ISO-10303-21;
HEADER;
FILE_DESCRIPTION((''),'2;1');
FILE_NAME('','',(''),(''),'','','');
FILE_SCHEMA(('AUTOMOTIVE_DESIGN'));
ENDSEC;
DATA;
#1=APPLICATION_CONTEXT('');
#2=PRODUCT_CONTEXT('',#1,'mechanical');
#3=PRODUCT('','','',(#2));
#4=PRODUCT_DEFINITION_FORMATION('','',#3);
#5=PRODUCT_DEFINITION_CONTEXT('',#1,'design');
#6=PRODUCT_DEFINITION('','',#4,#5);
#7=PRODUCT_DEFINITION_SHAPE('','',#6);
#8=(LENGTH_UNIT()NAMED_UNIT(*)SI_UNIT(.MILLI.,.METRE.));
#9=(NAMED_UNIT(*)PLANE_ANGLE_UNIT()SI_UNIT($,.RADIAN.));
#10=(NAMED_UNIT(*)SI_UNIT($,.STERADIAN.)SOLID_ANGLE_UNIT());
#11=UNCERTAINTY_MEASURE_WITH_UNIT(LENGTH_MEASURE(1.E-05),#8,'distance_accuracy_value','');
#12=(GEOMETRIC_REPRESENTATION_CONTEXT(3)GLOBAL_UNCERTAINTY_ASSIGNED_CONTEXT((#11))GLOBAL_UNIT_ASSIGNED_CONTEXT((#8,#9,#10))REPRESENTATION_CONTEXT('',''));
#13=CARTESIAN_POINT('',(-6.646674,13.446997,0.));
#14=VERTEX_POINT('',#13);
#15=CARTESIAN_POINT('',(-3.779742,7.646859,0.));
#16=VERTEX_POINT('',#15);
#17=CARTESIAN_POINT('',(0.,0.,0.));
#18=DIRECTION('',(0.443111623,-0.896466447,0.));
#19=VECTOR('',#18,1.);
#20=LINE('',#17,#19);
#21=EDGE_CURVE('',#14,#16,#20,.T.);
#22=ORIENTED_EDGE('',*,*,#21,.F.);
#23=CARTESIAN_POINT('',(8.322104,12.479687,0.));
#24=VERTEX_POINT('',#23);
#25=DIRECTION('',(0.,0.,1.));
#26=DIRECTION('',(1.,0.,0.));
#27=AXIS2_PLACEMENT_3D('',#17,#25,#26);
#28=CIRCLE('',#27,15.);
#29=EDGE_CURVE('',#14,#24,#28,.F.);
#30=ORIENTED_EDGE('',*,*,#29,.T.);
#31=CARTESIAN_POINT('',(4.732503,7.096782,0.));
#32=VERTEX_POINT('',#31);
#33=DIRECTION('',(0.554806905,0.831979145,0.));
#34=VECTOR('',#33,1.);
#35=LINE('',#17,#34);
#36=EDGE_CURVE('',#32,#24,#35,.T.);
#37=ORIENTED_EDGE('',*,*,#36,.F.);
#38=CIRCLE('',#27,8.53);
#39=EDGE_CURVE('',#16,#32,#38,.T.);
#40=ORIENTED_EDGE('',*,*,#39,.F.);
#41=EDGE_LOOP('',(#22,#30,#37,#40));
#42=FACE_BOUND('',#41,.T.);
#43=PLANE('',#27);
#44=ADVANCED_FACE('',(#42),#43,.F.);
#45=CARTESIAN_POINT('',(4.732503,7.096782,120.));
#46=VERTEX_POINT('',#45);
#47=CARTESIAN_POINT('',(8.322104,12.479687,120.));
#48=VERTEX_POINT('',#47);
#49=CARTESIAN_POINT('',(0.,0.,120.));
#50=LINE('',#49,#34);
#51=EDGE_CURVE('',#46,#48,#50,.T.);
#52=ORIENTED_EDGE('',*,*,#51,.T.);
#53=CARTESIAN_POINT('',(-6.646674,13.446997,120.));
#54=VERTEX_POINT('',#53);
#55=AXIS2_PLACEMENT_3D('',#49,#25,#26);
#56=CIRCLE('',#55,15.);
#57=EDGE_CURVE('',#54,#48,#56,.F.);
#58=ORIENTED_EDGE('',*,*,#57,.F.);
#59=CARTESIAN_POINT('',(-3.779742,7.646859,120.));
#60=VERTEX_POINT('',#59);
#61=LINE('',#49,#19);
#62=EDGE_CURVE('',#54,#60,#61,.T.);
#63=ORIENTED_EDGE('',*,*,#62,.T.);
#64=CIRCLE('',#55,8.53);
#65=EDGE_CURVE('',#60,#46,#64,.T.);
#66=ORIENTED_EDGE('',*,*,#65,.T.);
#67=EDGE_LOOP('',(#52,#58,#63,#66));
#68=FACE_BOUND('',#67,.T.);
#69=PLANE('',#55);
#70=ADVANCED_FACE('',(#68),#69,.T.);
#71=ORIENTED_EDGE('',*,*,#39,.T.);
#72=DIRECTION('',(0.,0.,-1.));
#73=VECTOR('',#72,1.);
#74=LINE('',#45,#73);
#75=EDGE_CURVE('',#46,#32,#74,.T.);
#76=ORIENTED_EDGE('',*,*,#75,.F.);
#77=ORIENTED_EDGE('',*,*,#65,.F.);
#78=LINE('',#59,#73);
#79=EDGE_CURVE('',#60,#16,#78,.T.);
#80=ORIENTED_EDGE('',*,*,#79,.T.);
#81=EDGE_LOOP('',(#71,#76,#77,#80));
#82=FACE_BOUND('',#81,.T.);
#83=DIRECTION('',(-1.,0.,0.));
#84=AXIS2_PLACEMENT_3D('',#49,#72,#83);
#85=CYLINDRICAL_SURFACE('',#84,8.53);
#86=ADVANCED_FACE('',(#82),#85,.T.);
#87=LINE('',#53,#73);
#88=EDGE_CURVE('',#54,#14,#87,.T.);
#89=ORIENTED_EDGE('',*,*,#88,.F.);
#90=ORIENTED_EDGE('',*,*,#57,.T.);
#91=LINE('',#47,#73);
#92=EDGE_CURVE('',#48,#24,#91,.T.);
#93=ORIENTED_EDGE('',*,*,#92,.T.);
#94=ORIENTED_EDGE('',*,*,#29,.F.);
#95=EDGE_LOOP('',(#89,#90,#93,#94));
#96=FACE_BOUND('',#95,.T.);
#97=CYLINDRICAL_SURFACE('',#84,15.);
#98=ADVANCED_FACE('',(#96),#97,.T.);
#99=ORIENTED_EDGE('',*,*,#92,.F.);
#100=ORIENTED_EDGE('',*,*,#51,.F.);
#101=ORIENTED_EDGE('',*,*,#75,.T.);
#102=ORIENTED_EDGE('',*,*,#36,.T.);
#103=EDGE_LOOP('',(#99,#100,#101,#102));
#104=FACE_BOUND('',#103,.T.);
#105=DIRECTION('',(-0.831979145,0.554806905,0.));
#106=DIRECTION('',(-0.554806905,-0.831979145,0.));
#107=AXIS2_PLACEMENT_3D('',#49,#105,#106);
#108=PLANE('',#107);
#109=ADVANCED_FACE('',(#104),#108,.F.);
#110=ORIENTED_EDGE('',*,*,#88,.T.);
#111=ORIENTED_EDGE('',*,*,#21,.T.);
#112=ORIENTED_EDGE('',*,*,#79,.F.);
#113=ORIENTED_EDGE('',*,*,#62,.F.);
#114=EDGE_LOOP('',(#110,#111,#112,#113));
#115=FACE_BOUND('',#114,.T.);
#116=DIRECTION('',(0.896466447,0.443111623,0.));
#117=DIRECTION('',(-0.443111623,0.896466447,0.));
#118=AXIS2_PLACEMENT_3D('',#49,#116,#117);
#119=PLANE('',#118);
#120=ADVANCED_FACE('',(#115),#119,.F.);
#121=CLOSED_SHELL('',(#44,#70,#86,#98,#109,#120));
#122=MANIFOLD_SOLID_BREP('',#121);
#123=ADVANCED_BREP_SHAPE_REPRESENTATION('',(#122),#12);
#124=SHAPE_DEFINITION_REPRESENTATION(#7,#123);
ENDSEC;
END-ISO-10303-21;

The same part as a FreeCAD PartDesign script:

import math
import FreeCAD as App
import Part
import Sketcher

V = App.Vector
Q = App.Units.Quantity

doc = App.newDocument("Part")
params = doc.addObject("Spreadsheet::Sheet", "Params")
for row, (alias, value) in enumerate([
    ("sketch1_radius", "15 mm"),
    ("sketch1_radius2", "8.53 mm"),
    ("pad1_length", "120 mm"),
], start=1):
    params.set(f"A{row}", alias)
    params.set(f"B{row}", "=" + value)
    params.setAlias(f"B{row}", alias)

body = doc.addObject("PartDesign::Body", "Body")

sketch1 = doc.addObject("Sketcher::SketchObject", "Sketch")
body.addObject(sketch1)
sketch1.AttachmentSupport = (doc.XY_Plane, [""])
sketch1.MapMode = "FlatFace"
sketch1.addGeometry([
    Part.LineSegment(V(5, 7, 0), V(8, 12, 0)),
    Part.ArcOfCircle(Part.Circle(V(0, 0, 0), V(0, 0, 1), 15), math.radians(56), math.radians(116)),
    Part.LineSegment(V(-7, 13, 0), V(-4, 8, 0)),
    Part.ArcOfCircle(Part.Circle(V(0, 0, 0), V(0, 0, 1), 9), math.radians(116), math.radians(416)),
], False)
sketch1.addConstraint([
    Sketcher.Constraint("Coincident", 0, 2, 1, 1),
    Sketcher.Constraint("Coincident", 1, 2, 2, 1),
    Sketcher.Constraint("Coincident", 2, 2, 3, 1),
    Sketcher.Constraint("Coincident", 3, 2, 0, 1),
    Sketcher.Constraint("Coincident", 1, 3, -1, 1),
    Sketcher.Constraint("Coincident", 3, 3, -1, 1),
    Sketcher.Constraint("Radius", 1, Q("15 mm")),
    Sketcher.Constraint("Radius", 3, Q("8.53 mm")),
    Sketcher.Constraint("DistanceX", 3, 2, 0, 2, Q("3.589601 mm")),
    Sketcher.Constraint("DistanceY", -1, 1, 2, 2, Q("7.646859 mm")),
    Sketcher.Constraint("DistanceY", 0, 2, 1, 2, Q("0.96731 mm")),
    Sketcher.Constraint("DistanceY", 2, 2, 0, 2, Q("4.832828 mm")),
])
sketch1.setExpression("Constraints[6]", "Params.sketch1_radius")
sketch1.setExpression("Constraints[7]", "Params.sketch1_radius2")
pad1 = doc.addObject("PartDesign::Pad", "Pad")
body.addObject(pad1)
pad1.Profile = sketch1
pad1.setExpression("Length", "Params.pad1_length")

doc.recompute()
